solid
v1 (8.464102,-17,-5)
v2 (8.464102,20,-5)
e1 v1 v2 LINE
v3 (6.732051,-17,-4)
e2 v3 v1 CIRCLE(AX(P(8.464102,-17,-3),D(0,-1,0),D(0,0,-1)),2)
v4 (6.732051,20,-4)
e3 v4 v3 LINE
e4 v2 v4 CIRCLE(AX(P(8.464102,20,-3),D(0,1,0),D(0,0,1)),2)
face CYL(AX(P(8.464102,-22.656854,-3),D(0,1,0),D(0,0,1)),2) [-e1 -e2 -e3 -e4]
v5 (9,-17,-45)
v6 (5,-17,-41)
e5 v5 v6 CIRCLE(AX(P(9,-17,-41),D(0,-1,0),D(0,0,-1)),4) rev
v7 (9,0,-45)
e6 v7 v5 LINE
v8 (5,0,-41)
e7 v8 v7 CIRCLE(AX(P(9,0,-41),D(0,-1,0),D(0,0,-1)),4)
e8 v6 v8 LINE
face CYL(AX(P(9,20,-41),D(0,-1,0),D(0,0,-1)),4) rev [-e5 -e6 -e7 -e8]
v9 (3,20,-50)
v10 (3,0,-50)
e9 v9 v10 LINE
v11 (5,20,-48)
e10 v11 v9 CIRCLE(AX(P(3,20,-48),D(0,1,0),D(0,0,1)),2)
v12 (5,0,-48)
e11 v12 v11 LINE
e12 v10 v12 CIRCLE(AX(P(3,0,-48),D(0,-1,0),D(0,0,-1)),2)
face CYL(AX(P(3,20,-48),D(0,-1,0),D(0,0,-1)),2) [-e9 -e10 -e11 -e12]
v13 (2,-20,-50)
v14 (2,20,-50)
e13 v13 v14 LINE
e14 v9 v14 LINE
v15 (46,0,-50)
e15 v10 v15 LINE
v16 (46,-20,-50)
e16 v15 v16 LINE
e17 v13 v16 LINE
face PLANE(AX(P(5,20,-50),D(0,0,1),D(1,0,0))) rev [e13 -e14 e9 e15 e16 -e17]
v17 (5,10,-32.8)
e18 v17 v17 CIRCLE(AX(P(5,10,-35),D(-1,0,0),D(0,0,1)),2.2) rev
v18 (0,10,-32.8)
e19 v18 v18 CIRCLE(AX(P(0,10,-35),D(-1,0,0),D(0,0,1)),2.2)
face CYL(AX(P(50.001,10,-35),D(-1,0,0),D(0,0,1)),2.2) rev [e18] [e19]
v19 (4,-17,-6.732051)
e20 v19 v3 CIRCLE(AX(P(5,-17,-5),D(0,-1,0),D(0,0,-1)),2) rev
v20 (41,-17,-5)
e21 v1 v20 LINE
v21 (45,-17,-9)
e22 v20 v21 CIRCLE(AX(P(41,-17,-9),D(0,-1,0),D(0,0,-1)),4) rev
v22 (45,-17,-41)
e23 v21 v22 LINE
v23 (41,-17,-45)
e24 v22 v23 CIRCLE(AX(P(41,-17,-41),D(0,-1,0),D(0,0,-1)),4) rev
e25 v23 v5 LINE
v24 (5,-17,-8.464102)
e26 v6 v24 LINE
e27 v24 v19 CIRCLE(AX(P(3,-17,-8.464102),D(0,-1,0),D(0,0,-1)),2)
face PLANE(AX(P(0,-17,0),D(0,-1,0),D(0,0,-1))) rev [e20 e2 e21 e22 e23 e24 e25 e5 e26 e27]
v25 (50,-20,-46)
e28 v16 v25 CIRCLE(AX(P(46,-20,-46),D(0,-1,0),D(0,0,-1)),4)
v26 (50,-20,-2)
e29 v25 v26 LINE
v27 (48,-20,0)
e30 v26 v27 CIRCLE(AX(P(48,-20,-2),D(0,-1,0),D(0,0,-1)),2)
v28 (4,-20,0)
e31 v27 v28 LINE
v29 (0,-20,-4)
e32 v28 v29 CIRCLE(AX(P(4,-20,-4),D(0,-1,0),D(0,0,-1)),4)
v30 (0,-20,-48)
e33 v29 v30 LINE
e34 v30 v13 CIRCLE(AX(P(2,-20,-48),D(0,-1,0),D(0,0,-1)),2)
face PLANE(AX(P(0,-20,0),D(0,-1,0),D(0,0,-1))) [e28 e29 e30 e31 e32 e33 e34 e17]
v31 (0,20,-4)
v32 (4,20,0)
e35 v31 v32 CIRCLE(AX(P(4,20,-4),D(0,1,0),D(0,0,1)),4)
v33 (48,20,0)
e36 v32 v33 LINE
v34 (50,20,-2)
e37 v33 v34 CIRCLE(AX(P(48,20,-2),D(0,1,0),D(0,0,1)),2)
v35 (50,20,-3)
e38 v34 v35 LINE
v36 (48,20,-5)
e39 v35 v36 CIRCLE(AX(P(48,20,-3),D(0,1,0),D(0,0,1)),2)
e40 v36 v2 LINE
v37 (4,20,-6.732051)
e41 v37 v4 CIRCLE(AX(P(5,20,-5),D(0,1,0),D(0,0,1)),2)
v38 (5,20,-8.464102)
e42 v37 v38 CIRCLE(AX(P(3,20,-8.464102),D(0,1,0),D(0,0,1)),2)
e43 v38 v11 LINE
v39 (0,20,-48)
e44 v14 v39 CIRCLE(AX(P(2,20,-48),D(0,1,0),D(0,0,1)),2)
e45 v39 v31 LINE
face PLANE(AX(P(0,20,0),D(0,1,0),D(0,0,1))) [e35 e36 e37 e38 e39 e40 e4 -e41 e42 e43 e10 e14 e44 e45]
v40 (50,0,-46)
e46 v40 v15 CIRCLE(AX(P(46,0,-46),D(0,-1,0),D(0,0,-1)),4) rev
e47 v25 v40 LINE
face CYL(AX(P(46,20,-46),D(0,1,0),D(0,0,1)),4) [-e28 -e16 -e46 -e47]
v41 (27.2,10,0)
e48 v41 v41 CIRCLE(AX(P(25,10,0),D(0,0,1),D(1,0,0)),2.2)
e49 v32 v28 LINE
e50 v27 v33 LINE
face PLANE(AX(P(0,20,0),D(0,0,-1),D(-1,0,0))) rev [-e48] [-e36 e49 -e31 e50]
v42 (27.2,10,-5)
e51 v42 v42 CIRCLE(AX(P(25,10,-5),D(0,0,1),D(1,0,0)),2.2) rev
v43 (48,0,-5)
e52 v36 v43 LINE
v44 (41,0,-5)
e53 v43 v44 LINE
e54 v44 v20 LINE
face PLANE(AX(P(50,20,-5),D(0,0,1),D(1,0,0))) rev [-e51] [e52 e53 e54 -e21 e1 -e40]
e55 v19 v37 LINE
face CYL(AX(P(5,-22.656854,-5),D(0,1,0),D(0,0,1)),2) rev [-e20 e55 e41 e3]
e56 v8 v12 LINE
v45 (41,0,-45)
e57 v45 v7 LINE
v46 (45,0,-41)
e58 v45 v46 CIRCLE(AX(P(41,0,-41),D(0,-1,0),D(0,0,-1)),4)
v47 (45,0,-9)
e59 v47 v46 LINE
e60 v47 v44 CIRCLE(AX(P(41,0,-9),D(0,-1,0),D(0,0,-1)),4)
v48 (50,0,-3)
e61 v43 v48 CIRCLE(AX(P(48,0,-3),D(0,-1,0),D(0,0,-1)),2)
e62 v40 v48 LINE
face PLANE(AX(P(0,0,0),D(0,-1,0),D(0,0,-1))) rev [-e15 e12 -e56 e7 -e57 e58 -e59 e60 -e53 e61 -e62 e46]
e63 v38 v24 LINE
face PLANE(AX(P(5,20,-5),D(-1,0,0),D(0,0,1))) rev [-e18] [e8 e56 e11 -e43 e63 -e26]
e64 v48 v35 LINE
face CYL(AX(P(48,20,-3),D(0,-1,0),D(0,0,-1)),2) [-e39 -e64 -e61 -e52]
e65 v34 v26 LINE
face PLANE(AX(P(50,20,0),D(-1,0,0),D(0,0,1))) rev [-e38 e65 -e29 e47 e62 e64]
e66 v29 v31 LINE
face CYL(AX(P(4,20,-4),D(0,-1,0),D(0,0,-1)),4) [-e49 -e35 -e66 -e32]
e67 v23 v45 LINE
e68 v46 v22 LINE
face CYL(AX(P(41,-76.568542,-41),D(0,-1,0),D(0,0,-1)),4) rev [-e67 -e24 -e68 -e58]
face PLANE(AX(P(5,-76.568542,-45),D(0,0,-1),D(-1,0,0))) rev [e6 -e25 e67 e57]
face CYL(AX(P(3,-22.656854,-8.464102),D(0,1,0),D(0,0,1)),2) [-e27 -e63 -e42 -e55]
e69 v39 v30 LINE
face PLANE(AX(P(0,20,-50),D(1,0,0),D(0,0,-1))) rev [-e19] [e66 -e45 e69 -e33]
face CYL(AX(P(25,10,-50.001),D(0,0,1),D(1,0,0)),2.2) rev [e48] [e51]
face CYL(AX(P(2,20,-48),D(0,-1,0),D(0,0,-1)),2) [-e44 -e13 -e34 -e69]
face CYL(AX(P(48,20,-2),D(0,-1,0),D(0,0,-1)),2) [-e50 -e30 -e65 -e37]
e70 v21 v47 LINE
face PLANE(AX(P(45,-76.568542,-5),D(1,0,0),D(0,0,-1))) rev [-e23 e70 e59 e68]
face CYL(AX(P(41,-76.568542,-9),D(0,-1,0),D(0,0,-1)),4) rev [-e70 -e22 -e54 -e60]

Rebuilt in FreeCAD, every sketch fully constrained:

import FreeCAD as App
import Part
import Sketcher
from FreeCAD import Vector


def edges_at(feature, points):
    """Names of the edges that pass closest to the given points."""
    edges = feature.Shape.Edges
    near = lambda p: min(range(len(edges)), key=lambda i: edges[i].distToShape(Part.Vertex(*p))[0])
    return sorted({f"Edge{near(p) + 1}" for p in points})

doc = App.newDocument("Part")
params = doc.addObject("Spreadsheet::Sheet", "Params")
for row, (alias, value) in enumerate([
    ("sketch1_width", "50 mm"),
    ("sketch1_width2", "45 mm"),
    ("pad1_length", "20 mm"),
    ("sketch2_diameter", "4.4 mm"),
    ("sketch3_diameter", "4.4 mm"),
    ("sketch4_width", "50 mm"),
    ("pad2_length", "20 mm"),
    ("sketch5_width", "40 mm"),
    ("pocket3_length", "17 mm"),
    ("sketch6_diameter", "4 mm"),
    ("pocket4_length", "37 mm"),
    ("fillet_radius", "4 mm"),
    ("fillet2_radius", "2 mm"),
], start=1):
    params.set(f"A{row}", alias)
    params.set(f"B{row}", "=" + value)
    params.setAlias(f"B{row}", alias)

body = doc.addObject("PartDesign::Body", "Body")

# Sketch on XZ plane
sketch1 = body.newObject("Sketcher::SketchObject", "Sketch")
sketch1.AttachmentSupport = (doc.getObject("XZ_Plane"), [""])
sketch1.MapMode = "FlatFace"
sketch1.addGeometry([
    Part.LineSegment(Vector(0, 0, 0), Vector(50, 0, 0)),  # 0
    Part.LineSegment(Vector(50, 0, 0), Vector(50, -5, 0)),  # 1
    Part.LineSegment(Vector(50, -5, 0), Vector(5, -5, 0)),  # 2
    Part.LineSegment(Vector(5, -5, 0), Vector(5, -50, 0)),  # 3
    Part.LineSegment(Vector(5, -50, 0), Vector(0, -50, 0)),  # 4
    Part.LineSegment(Vector(0, -50, 0), Vector(0, 0, 0)),  # 5
], False)
sketch1.addConstraint([
    Sketcher.Constraint("Coincident", 0, 2, 1, 1),
    Sketcher.Constraint("Coincident", 1, 2, 2, 1),
    Sketcher.Constraint("Coincident", 2, 2, 3, 1),
    Sketcher.Constraint("Coincident", 3, 2, 4, 1),
    Sketcher.Constraint("Coincident", 4, 2, 5, 1),
    Sketcher.Constraint("Coincident", 5, 2, 0, 1),
    Sketcher.Constraint("Horizontal", 0),
    Sketcher.Constraint("Vertical", 1),
    Sketcher.Constraint("Horizontal", 2),
    Sketcher.Constraint("Vertical", 3),
    Sketcher.Constraint("Horizontal", 4),
    Sketcher.Constraint("Vertical", 5),
    Sketcher.Constraint("Coincident", 5, 2, -1, 1),
    Sketcher.Constraint("Equal", 4, 1),
    Sketcher.Constraint("Equal", 2, 3),
    Sketcher.Constraint("DistanceX", 0, 1, 0, 2, 50.0),
    Sketcher.Constraint("DistanceX", 2, 2, 2, 1, 45.0),
])
sketch1.setExpression("Constraints[15]", "Params.sketch1_width")
sketch1.setExpression("Constraints[16]", "Params.sketch1_width2")
pad1 = body.newObject("PartDesign::Pad", "Pad")
pad1.Profile = sketch1
pad1.setExpression("Length", "Params.pad1_length")
pad1.Reversed = True

# Sketch on YZ plane
sketch2 = body.newObject("Sketcher::SketchObject", "Sketch001")
sketch2.AttachmentSupport = (doc.getObject("YZ_Plane"), [""])
sketch2.MapMode = "FlatFace"
sketch2.addGeometry(Part.Circle(Vector(10, -35, 0), Vector(0, 0, 1), 2.2), False)
sketch2.addConstraint([
    Sketcher.Constraint("Diameter", 0, 4.4),
    Sketcher.Constraint("DistanceX", -1, 1, 0, 3, 10.0),
    Sketcher.Constraint("DistanceY", 0, 3, -1, 1, 35.0),
])
sketch2.setExpression("Constraints[0]", "Params.sketch2_diameter")
pocket1 = body.newObject("PartDesign::Pocket", "Pocket")
pocket1.Profile = sketch2
pocket1.Type = "UpToFirst"
pocket1.Reversed = True

# Sketch on XY plane
sketch3 = body.newObject("Sketcher::SketchObject", "Sketch002")
sketch3.AttachmentSupport = (doc.getObject("XY_Plane"), [""])
sketch3.MapMode = "FlatFace"
sketch3.addGeometry(Part.Circle(Vector(25, 10, 0), Vector(0, 0, 1), 2.2), False)
sketch3.addConstraint([
    Sketcher.Constraint("Diameter", 0, 4.4),
    Sketcher.Constraint("DistanceX", -1, 1, 0, 3, 25.0),
    Sketcher.Constraint("DistanceY", -1, 1, 0, 3, 10.0),
])
sketch3.setExpression("Constraints[0]", "Params.sketch3_diameter")
pocket2 = body.newObject("PartDesign::Pocket", "Pocket001")
pocket2.Profile = sketch3
pocket2.Type = "UpToFirst"

# Sketch on XZ plane
sketch4 = body.newObject("Sketcher::SketchObject", "Sketch003")
sketch4.AttachmentSupport = (doc.getObject("XZ_Plane"), [""])
sketch4.MapMode = "FlatFace"
sketch4.addGeometry([
    Part.LineSegment(Vector(0, 0, 0), Vector(0, -50, 0)),
    Part.LineSegment(Vector(0, -50, 0), Vector(50, -50, 0)),
    Part.LineSegment(Vector(50, -50, 0), Vector(50, 0, 0)),
    Part.LineSegment(Vector(50, 0, 0), Vector(0, 0, 0)),
], False)
sketch4.addConstraint([
    Sketcher.Constraint("Coincident", 0, 2, 1, 1),
    Sketcher.Constraint("Coincident", 1, 2, 2, 1),
    Sketcher.Constraint("Coincident", 2, 2, 3, 1),
    Sketcher.Constraint("Coincident", 3, 2, 0, 1),
    Sketcher.Constraint("Vertical", 0),
    Sketcher.Constraint("Horizontal", 1),
    Sketcher.Constraint("Vertical", 2),
    Sketcher.Constraint("Horizontal", 3),
    Sketcher.Constraint("Coincident", 3, 2, -1, 1),
    Sketcher.Constraint("Equal", 3, 0),
    Sketcher.Constraint("DistanceX", 1, 1, 1, 2, 50.0),
])
sketch4.setExpression("Constraints[10]", "Params.sketch4_width")
pad2 = body.newObject("PartDesign::Pad", "Pad001")
pad2.Profile = sketch4
pad2.setExpression("Length", "Params.pad2_length")

# Sketch on XZ plane
sketch5 = body.newObject("Sketcher::SketchObject", "Sketch004")
sketch5.AttachmentSupport = (doc.getObject("XZ_Plane"), [""])
sketch5.MapMode = "FlatFace"
sketch5.addGeometry([
    Part.LineSegment(Vector(5, -45, 0), Vector(5, -5, 0)),
    Part.LineSegment(Vector(5, -5, 0), Vector(45, -5, 0)),
    Part.LineSegment(Vector(45, -5, 0), Vector(45, -45, 0)),
    Part.LineSegment(Vector(45, -45, 0), Vector(5, -45, 0)),
], False)
sketch5.addConstraint([
    Sketcher.Constraint("Coincident", 0, 2, 1, 1),
    Sketcher.Constraint("Coincident", 1, 2, 2, 1),
    Sketcher.Constraint("Coincident", 2, 2, 3, 1),
    Sketcher.Constraint("Coincident", 3, 2, 0, 1),
    Sketcher.Constraint("Vertical", 0),
    Sketcher.Constraint("Horizontal", 1),
    Sketcher.Constraint("Vertical", 2),
    Sketcher.Constraint("Horizontal", 3),
    Sketcher.Constraint("Equal", 3, 0),
    Sketcher.Constraint("DistanceX", 1, 1, 1, 2, 40.0),
    Sketcher.Constraint("DistanceX", -1, 1, 0, 2, 5.0),
    Sketcher.Constraint("DistanceY", 0, 2, -1, 1, 5.0),
])
sketch5.setExpression("Constraints[9]", "Params.sketch5_width")
pocket3 = body.newObject("PartDesign::Pocket", "Pocket002")
pocket3.Profile = sketch5
pocket3.setExpression("Length", "Params.pocket3_length")
pocket3.Reversed = True

# Sketch on XZ plane
sketch6 = body.newObject("Sketcher::SketchObject", "Sketch005")
sketch6.AttachmentSupport = (doc.getObject("XZ_Plane"), [""])
sketch6.MapMode = "FlatFace"
sketch6.AttachmentOffset = App.Placement(Vector(0, 0, -20), App.Rotation())
sketch6.addGeometry(Part.Circle(Vector(5, -5, 0), Vector(0, 0, 1), 2), False)
sketch6.addConstraint([
    Sketcher.Constraint("Diameter", 0, 4.0),
    Sketcher.Constraint("DistanceX", -1, 1, 0, 3, 5.0),
    Sketcher.Constraint("DistanceY", 0, 3, -1, 1, 5.0),
])
sketch6.setExpression("Constraints[0]", "Params.sketch6_diameter")
pocket4 = body.newObject("PartDesign::Pocket", "Pocket003")
pocket4.Profile = sketch6
pocket4.setExpression("Length", "Params.pocket4_length")
pocket4.Reversed = True
doc.recompute()

fillet = body.newObject("PartDesign::Fillet", "Fillet")
fillet.Base = (pocket4, edges_at(pocket4, [
    (0, 0, 0),
    (50, -10, -50),
    (45, -8.5, -5),
    (45, -8.5, -45),
    (5, -8.5, -45),
]))
fillet.setExpression("Radius", "Params.fillet_radius")
doc.recompute()

fillet2 = body.newObject("PartDesign::Fillet", "Fillet001")
fillet2.Base = (fillet, edges_at(fillet, [
    (0, 0, -50),
    (5, 10, -50),
    (50, 10, -5),
    (50, 0, 0),
    (7, 1.5, -5),
    (5, 1.5, -7),
]))
fillet2.setExpression("Radius", "Params.fillet2_radius")

doc.recompute()
